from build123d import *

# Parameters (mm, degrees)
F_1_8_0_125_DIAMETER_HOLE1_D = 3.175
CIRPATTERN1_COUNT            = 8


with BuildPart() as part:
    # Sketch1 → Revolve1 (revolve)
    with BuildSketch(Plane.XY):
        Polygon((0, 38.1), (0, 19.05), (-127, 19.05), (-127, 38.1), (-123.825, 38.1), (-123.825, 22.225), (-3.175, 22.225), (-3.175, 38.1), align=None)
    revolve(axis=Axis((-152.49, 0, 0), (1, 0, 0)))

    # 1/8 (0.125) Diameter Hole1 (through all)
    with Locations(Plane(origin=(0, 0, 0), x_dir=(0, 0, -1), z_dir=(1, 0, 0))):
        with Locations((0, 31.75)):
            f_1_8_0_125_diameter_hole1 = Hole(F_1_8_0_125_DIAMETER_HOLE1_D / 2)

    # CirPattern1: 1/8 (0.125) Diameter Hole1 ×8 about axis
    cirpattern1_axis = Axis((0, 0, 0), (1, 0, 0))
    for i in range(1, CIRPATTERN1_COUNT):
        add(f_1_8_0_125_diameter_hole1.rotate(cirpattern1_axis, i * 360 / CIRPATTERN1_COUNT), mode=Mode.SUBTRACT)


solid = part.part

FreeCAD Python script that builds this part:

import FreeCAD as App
import Part
import Sketcher
from FreeCAD import Vector
Q = App.Units.Quantity


def add_polygon(sketch, points):
    """Adds a closed chain of lines whose ends are joined by coincident constraints."""
    first, n = sketch.GeometryCount, len(points)
    for a, b in zip(points, points[1:] + points[:1]):
        sketch.addGeometry(Part.LineSegment(App.Vector(*a, 0), App.Vector(*b, 0)), False)
    for i in range(n):
        sketch.addConstraint(Sketcher.Constraint("Coincident", first + i, 2, first + (i + 1) % n, 1))

doc = App.newDocument("Part")
body = doc.addObject("PartDesign::Body", "Body")

sketch1 = body.newObject("Sketcher::SketchObject", "Sketch")
sketch1.AttachmentSupport = (doc.getObject("XY_Plane"), [""])
sketch1.MapMode = "FlatFace"
add_polygon(sketch1, [(0, 19.1), (0, 38.1), (-3.2, 38.1), (-3.2, 22.2), (-123.8, 22.2), (-123.8, 38.1), (-127, 38.1), (-127, 19.1)])
sketch1.addConstraint([
    Sketcher.Constraint("Vertical", 0),
    Sketcher.Constraint("Horizontal", 1),
    Sketcher.Constraint("Vertical", 2),
    Sketcher.Constraint("Horizontal", 3),
    Sketcher.Constraint("Vertical", 4),
    Sketcher.Constraint("Horizontal", 5),
    Sketcher.Constraint("Vertical", 6),
    Sketcher.Constraint("Horizontal", 7),
    Sketcher.Constraint("PointOnObject", 0, 2, -2),
    Sketcher.Constraint("Horizontal", 1, 2, 4, 2),
    Sketcher.Constraint("Equal", 1, 5),
    Sketcher.Constraint("DistanceX", 7, 1, 7, 2, Q("5 in")),
    Sketcher.Constraint("DistanceX", 3, 2, 3, 1, Q("4.75 in")),
    Sketcher.Constraint("DistanceY", 0, 1, 0, 2, Q("0.75 in")),
    Sketcher.Constraint("DistanceY", -1, 1, 0, 2, Q("1.5 in")),
    Sketcher.Constraint("DistanceY", 2, 2, 2, 1, Q("0.625 in")),
])
revolution = body.newObject("PartDesign::Revolution", "Revolution")
revolution.Profile = sketch1
revolution.ReferenceAxis = (sketch1, ["H_Axis"])
revolution.Angle = 360

sketch2 = body.newObject("Sketcher::SketchObject", "Sketch001")
sketch2.AttachmentSupport = (doc.getObject("YZ_Plane"), [""])
sketch2.MapMode = "FlatFace"
sketch2.addGeometry(Part.Circle(Vector(31.8, 0, 0), Vector(0, 0, 1), 1.6), False)
sketch2.addConstraint([
    Sketcher.Constraint("PointOnObject", 0, 3, -1),
    Sketcher.Constraint("Diameter", 0, Q("0.125 in")),
    Sketcher.Constraint("DistanceX", -1, 1, 0, 3, Q("1.25 in")),
])
doc.recompute()
hole = body.newObject("PartDesign::Hole", "Hole")
hole.Profile = sketch2
hole.ThreadType = "None"
hole.Diameter = Q("0.125 in")
hole.DepthType = "ThroughAll"
doc.recompute()

polarpattern = body.newObject("PartDesign::PolarPattern", "PolarPattern")
polarpattern.Originals = [hole]
polarpattern.Axis = (doc.getObject("X_Axis"), [""])
polarpattern.Angle = 360
polarpattern.Occurrences = 8
body.Tip = polarpattern

doc.recompute()
